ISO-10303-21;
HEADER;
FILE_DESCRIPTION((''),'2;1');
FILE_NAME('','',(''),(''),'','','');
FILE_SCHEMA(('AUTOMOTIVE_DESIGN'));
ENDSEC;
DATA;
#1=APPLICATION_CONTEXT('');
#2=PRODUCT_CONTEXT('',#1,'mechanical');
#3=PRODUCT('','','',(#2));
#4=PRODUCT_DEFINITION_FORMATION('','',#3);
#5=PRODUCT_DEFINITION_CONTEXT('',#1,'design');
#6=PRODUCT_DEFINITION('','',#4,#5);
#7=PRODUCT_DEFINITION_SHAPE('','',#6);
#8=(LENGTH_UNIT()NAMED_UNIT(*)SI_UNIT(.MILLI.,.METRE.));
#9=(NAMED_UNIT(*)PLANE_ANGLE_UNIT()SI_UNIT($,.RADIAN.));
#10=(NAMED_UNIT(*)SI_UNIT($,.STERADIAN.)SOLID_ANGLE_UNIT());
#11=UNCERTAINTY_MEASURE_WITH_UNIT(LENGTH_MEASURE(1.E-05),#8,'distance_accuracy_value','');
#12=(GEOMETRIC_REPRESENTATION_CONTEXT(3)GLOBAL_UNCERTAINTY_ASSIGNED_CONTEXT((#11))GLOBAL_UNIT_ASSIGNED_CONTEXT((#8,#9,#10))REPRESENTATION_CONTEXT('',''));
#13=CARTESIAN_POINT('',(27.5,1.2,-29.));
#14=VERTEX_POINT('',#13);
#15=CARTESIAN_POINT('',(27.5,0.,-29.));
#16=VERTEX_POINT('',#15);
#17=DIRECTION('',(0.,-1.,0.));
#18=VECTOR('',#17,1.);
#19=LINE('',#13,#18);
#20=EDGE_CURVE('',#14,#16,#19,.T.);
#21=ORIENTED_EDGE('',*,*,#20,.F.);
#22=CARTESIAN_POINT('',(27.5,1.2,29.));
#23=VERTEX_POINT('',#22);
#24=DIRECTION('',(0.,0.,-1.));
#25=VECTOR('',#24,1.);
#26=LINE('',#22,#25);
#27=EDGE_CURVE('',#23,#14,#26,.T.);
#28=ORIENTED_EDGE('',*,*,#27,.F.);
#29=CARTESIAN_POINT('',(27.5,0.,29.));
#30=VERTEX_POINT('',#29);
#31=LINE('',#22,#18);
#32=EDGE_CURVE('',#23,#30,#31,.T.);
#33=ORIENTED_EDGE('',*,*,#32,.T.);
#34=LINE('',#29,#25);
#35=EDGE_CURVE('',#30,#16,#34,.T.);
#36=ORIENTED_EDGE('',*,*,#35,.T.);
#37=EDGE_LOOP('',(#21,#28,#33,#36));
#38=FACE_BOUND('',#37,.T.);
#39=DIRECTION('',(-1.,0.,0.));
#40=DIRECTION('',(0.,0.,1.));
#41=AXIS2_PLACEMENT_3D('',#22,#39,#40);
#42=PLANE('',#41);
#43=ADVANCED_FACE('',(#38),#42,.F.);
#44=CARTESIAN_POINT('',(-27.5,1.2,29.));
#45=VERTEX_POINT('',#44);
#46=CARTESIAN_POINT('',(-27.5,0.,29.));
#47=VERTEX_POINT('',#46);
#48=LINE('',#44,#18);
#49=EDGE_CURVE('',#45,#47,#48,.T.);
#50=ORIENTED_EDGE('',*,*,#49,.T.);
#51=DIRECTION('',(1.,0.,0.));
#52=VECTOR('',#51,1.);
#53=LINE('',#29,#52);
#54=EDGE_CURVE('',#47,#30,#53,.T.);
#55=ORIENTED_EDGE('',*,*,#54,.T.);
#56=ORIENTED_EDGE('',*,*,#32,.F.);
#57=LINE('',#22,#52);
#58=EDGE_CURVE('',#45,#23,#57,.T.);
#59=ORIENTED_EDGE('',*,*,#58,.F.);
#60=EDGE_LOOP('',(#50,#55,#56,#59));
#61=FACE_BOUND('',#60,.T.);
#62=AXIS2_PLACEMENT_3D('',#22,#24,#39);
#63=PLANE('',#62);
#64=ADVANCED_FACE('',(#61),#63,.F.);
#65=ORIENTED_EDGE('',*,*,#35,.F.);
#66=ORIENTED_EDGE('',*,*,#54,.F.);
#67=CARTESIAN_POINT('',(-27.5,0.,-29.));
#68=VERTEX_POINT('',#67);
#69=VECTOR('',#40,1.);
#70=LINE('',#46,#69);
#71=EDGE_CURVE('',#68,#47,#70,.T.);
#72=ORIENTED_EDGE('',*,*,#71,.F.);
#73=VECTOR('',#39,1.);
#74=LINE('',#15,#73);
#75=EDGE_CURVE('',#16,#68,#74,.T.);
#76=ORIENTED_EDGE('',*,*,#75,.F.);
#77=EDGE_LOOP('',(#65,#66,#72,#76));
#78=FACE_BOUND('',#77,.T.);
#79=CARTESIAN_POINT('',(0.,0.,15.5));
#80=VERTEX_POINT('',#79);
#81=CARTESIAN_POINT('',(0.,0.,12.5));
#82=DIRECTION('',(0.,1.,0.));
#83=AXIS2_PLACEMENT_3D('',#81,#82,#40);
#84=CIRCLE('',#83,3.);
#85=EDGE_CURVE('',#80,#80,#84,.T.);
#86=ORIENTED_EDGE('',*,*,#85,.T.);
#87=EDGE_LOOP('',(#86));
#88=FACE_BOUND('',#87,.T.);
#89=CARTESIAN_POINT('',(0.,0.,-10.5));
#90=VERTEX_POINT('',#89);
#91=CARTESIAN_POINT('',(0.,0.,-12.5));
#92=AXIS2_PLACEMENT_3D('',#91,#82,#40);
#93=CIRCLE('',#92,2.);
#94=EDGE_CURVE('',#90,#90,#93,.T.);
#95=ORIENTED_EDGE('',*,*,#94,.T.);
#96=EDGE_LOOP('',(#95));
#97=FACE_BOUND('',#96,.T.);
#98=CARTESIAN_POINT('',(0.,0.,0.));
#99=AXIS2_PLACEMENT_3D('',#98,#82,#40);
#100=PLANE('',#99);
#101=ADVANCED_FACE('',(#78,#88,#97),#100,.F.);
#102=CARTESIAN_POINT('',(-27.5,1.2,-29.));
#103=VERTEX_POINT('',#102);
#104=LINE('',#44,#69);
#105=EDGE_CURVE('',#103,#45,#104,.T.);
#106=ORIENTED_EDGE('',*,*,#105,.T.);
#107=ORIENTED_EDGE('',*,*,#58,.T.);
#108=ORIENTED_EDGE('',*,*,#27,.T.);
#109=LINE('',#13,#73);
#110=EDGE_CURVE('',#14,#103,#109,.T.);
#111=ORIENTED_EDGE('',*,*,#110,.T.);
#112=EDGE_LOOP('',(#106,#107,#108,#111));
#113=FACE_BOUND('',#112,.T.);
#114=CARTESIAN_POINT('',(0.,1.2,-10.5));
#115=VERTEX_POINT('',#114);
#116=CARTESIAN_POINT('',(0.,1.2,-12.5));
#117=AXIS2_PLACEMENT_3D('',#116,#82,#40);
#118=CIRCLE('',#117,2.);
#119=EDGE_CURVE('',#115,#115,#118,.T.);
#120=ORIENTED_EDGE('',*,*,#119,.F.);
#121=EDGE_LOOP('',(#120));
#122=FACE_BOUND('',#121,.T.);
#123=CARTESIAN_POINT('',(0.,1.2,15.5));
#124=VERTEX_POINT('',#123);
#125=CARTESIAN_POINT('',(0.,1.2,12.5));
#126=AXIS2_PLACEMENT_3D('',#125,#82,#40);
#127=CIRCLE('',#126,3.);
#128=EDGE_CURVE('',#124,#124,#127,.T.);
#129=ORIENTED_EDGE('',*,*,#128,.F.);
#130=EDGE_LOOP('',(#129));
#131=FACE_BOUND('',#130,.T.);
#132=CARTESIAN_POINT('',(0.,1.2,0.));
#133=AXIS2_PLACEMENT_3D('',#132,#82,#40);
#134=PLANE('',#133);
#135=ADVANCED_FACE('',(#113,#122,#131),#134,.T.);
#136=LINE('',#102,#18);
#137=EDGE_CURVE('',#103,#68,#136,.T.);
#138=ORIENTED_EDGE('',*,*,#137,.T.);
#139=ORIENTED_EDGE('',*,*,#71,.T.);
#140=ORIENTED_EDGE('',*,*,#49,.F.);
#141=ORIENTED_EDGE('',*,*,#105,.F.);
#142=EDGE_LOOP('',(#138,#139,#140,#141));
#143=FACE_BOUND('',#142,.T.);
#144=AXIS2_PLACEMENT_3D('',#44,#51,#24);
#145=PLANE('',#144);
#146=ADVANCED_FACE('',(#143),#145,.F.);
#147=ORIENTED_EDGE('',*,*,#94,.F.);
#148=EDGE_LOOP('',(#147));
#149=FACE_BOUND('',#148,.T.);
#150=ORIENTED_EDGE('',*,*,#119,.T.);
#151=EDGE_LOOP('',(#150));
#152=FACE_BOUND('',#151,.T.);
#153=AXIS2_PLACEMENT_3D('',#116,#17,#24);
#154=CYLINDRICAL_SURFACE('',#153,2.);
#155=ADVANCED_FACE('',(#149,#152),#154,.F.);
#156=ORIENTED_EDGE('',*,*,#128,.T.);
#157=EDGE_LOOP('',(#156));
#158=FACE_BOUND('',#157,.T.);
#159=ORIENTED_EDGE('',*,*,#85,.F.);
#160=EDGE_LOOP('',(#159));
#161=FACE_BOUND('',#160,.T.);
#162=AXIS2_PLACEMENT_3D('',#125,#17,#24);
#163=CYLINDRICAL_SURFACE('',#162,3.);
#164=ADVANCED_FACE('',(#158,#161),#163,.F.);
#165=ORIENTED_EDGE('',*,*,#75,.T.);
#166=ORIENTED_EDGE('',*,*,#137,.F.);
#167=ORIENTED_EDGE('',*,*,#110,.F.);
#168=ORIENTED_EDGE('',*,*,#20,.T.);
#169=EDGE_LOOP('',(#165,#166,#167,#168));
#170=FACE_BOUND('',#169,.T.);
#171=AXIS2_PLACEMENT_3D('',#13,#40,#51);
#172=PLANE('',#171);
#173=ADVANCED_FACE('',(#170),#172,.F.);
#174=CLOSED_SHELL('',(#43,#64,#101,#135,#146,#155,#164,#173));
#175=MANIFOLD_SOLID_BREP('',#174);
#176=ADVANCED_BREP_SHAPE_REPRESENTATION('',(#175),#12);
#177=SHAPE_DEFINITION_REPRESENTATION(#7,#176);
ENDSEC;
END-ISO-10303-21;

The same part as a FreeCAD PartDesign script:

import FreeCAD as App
import Part
import Sketcher

V = App.Vector


def add_polygon(sketch, points):
    """Adds a closed chain of lines whose ends are joined by coincident constraints."""
    first, n = sketch.GeometryCount, len(points)
    for a, b in zip(points, points[1:] + points[:1]):
        sketch.addGeometry(Part.LineSegment(App.Vector(*a, 0), App.Vector(*b, 0)), False)
    for i in range(n):
        sketch.addConstraint(Sketcher.Constraint("Coincident", first + i, 2, first + (i + 1) % n, 1))

doc = App.newDocument("Part")
body = doc.addObject("PartDesign::Body", "Body")

# Sketch on XZ plane
sketch1 = doc.addObject("Sketcher::SketchObject", "Sketch")
body.addObject(sketch1)
sketch1.AttachmentSupport = (doc.XZ_Plane, [""])
sketch1.MapMode = "FlatFace"
add_polygon(sketch1, [(-27.5, -29), (-27.5, 29), (27.5, 29), (27.5, -29)])  # lines 0-3
sketch1.addGeometry(Part.Circle(V(0, 12.5, 0), V(0, 0, 1), 3), False)  # 4
sketch1.addGeometry(Part.Circle(V(0, -12.5, 0), V(0, 0, 1), 2), False)  # 5
sketch1.addConstraint([
    Sketcher.Constraint("Vertical", 0),
    Sketcher.Constraint("Horizontal", 1),
    Sketcher.Constraint("Vertical", 2),
    Sketcher.Constraint("Horizontal", 3),
    Sketcher.Constraint("Symmetric", 4, 3, 5, 3, -1, 1),
    Sketcher.Constraint("Symmetric", 0, 2, 2, 2, -1, 1),
    Sketcher.Constraint("PointOnObject", 4, 3, -2),
    Sketcher.Constraint("Diameter", 4, 6.0),
    Sketcher.Constraint("Diameter", 5, 4.0),
    Sketcher.Constraint("DistanceX", 1, 1, 1, 2, 55.0),
    Sketcher.Constraint("DistanceY", 0, 1, 0, 2, 58.0),
    Sketcher.Constraint("DistanceY", 5, 3, 4, 3, 25.0),
])
pad1 = doc.addObject("PartDesign::Pad", "Pad")
body.addObject(pad1)
pad1.Profile = sketch1
pad1.Length = 1.2
pad1.Reversed = True

doc.recompute()
